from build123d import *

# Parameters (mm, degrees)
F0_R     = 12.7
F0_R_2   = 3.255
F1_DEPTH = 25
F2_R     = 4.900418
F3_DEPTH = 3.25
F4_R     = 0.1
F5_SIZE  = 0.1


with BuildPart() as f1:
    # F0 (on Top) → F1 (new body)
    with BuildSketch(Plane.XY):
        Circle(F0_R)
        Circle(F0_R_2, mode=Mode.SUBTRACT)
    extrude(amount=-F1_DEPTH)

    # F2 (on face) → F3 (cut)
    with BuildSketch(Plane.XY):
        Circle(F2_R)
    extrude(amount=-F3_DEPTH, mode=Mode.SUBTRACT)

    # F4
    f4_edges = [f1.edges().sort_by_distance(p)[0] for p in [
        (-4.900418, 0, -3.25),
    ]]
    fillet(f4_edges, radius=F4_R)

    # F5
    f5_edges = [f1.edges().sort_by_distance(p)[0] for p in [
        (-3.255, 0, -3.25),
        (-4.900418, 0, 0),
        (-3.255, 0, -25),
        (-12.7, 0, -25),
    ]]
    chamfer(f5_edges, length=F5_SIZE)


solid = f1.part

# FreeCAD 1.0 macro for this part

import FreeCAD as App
import Part
import Sketcher
from FreeCAD import Vector
Q = App.Units.Quantity


def edges_at(feature, points):
    """Names of the edges that pass closest to the given points."""
    edges = feature.Shape.Edges
    near = lambda p: min(range(len(edges)), key=lambda i: edges[i].distToShape(Part.Vertex(*p))[0])
    return sorted({f"Edge{near(p) + 1}" for p in points})

doc = App.newDocument("Part")
body = doc.addObject("PartDesign::Body", "Body")

sketch1 = body.newObject("Sketcher::SketchObject", "Sketch")
sketch1.AttachmentSupport = (doc.getObject("XY_Plane"), [""])
sketch1.MapMode = "FlatFace"
sketch1.addGeometry(Part.Circle(Vector(0, 0, 0), Vector(0, 0, 1), 12.7), False)
sketch1.addGeometry(Part.Circle(Vector(0, 0, 0), Vector(0, 0, 1), 3.3), False)
sketch1.addConstraint(Sketcher.Constraint("Coincident", 0, 3, -1, 1))
sketch1.addConstraint(Sketcher.Constraint("Coincident", 1, 3, -1, 1))
sketch1.addConstraint(Sketcher.Constraint("Diameter", 0, Q("25.4 mm")))
sketch1.addConstraint(Sketcher.Constraint("Diameter", 1, Q("6.51 mm")))
pad1 = body.newObject("PartDesign::Pad", "Pad")
pad1.Profile = sketch1
pad1.Length = 25
pad1.Reversed = True

sketch2 = body.newObject("Sketcher::SketchObject", "Sketch001")
sketch2.AttachmentSupport = (doc.getObject("XY_Plane"), [""])
sketch2.MapMode = "FlatFace"
sketch2.addGeometry(Part.Circle(Vector(0, 0, 0), Vector(0, 0, 1), 4.9), False)
sketch2.addConstraint(Sketcher.Constraint("Coincident", 0, 3, -1, 1))
sketch2.addConstraint(Sketcher.Constraint("Diameter", 0, Q("9.800836 mm")))
pocket1 = body.newObject("PartDesign::Pocket", "Pocket")
pocket1.Profile = sketch2
pocket1.Length = 3.25
doc.recompute()

fillet = body.newObject("PartDesign::Fillet", "Fillet")
fillet.Base = (pocket1, edges_at(pocket1, [(-4.9, 0, -3.25)]))
fillet.Radius = 0.1
doc.recompute()

chamfer = body.newObject("PartDesign::Chamfer", "Chamfer")
chamfer.Base = (fillet, edges_at(fillet, [
    (-3.255, 0, -3.25),
    (-4.9, 0, 0),
    (-3.255, 0, -25),
    (-12.7, 0, -25),
]))
chamfer.Size = 0.1

doc.recompute()
